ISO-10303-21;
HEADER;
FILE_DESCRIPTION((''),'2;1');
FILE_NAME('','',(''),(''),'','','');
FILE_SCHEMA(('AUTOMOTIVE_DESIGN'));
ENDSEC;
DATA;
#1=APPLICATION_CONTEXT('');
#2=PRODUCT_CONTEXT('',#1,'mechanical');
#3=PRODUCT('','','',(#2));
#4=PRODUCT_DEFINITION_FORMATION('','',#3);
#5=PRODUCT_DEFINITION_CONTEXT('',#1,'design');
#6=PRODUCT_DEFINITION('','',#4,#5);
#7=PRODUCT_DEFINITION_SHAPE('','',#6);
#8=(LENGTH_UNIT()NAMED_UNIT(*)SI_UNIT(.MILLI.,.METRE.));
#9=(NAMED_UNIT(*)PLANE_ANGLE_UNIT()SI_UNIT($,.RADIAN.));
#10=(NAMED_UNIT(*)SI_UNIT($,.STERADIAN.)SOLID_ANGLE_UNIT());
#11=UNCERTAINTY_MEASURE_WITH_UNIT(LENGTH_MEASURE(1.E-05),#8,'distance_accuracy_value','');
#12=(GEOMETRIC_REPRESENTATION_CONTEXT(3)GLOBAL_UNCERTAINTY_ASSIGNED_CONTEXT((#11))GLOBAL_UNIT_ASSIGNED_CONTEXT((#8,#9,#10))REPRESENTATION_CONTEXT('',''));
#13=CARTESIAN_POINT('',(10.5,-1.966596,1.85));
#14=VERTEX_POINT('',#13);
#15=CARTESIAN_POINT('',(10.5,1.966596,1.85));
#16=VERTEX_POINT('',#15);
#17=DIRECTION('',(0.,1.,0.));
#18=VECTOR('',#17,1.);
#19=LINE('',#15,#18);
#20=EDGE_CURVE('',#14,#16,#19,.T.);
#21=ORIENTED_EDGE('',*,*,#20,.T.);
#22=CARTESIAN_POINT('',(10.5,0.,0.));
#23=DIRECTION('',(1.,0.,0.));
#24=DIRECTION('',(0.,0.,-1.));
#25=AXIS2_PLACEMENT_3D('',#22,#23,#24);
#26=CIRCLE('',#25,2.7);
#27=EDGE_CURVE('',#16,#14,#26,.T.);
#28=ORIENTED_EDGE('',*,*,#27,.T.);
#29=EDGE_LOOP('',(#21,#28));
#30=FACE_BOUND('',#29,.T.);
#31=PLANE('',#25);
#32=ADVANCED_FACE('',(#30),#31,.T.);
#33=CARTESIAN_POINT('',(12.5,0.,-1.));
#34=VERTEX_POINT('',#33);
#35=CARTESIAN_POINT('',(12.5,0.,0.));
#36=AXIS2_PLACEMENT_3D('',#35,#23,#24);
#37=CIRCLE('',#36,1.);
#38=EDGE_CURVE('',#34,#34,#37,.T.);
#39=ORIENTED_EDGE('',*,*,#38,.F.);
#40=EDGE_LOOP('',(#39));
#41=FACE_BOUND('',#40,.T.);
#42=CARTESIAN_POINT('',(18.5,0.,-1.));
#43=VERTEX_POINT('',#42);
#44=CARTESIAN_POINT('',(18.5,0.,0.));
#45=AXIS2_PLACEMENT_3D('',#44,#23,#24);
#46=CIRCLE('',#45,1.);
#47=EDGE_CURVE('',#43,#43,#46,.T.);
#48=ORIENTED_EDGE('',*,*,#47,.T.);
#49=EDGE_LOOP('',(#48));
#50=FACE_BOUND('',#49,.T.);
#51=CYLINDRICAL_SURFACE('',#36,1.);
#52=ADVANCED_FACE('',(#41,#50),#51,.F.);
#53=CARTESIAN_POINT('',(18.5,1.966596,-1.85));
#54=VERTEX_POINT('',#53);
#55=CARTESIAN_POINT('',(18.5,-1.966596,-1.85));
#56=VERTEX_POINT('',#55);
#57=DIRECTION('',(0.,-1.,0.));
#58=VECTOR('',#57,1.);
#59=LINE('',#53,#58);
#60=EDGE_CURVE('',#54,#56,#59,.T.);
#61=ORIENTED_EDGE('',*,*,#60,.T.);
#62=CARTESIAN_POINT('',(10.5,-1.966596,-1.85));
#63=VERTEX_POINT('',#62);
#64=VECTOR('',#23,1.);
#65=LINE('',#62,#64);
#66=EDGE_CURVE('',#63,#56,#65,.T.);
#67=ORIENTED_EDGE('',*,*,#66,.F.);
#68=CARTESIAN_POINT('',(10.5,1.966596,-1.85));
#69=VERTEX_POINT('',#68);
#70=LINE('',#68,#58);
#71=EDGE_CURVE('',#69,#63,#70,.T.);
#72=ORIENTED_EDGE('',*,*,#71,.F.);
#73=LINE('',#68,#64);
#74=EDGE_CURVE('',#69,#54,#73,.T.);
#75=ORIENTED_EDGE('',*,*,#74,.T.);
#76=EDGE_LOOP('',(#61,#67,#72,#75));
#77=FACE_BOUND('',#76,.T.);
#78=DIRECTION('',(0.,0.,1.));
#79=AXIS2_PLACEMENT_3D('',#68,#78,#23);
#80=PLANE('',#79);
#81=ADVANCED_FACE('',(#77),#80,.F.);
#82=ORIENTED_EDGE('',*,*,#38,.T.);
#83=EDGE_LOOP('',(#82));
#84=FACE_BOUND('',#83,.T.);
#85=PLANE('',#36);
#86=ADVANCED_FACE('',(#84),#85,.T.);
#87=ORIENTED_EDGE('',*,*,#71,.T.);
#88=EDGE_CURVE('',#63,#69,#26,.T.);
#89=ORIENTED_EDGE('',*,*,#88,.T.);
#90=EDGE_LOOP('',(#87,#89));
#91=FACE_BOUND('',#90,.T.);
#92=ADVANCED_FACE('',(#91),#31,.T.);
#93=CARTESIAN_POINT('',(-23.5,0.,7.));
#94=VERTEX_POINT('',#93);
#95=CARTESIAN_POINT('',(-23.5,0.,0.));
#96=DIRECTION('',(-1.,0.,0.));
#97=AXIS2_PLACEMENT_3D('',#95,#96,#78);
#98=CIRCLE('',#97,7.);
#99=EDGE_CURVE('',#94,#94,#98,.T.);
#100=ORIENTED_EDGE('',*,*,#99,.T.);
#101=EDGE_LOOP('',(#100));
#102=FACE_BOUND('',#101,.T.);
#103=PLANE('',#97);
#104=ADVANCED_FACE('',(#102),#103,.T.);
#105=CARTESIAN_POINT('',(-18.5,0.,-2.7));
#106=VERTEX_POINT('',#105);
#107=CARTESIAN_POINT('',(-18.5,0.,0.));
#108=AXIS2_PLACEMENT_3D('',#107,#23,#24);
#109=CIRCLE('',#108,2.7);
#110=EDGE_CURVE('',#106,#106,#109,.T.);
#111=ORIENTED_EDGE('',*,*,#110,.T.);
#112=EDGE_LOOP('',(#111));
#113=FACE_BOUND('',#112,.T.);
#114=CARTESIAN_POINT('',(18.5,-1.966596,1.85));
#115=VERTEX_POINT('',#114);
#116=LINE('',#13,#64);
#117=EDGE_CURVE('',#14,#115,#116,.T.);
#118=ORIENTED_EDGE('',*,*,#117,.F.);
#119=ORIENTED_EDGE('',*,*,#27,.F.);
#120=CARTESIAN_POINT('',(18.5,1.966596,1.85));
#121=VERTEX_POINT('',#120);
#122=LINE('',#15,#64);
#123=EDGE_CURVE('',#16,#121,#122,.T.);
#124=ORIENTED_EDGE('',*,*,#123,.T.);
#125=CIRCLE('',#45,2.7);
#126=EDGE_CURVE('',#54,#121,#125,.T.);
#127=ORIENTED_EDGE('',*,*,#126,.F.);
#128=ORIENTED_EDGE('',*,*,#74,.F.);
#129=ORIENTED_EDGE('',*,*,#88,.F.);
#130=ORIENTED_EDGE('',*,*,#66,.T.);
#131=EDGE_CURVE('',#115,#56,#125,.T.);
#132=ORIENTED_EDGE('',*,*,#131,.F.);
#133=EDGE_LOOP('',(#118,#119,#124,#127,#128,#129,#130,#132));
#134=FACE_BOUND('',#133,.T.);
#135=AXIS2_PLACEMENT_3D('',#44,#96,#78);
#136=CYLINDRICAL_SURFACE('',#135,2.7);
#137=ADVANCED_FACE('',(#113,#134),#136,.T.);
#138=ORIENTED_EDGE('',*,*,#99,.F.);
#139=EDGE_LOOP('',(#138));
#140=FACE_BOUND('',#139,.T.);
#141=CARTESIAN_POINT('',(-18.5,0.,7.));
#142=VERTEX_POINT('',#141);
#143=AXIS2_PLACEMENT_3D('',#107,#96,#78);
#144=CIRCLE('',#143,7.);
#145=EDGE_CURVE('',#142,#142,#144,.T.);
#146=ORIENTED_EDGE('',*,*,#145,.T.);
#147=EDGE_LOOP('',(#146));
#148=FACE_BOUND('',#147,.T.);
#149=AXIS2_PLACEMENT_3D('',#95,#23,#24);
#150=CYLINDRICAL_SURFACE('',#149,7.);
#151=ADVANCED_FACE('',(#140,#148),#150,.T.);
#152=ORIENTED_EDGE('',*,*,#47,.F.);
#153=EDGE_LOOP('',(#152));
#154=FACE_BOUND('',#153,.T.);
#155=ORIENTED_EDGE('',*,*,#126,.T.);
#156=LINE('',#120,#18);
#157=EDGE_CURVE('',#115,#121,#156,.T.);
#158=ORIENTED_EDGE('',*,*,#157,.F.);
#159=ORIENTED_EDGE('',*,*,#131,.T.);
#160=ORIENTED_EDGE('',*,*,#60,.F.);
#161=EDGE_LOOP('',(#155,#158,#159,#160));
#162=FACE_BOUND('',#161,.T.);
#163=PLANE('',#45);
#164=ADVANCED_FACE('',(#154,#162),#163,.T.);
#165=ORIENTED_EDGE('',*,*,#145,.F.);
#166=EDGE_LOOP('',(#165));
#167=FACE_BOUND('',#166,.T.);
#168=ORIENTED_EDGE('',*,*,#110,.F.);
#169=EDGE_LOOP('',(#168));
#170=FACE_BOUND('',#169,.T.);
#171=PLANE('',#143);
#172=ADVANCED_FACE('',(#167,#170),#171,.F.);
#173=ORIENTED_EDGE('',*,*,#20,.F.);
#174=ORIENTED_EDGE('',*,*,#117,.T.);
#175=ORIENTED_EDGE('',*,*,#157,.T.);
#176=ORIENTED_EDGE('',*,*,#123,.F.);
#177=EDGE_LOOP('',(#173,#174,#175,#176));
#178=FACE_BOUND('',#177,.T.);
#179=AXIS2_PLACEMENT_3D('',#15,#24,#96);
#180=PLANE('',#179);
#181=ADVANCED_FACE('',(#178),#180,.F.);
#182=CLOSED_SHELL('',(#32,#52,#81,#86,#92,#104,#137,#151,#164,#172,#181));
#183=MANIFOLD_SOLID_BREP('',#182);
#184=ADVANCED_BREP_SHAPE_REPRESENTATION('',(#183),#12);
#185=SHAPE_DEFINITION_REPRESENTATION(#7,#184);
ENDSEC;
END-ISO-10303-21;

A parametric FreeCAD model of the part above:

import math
import FreeCAD as App
import Part
import Sketcher
from FreeCAD import Vector
Q = App.Units.Quantity

doc = App.newDocument("Part")
body = doc.addObject("PartDesign::Body", "Body")

# Sketch on YZ plane
sketch1 = body.newObject("Sketcher::SketchObject", "Sketch")
sketch1.AttachmentSupport = (doc.getObject("YZ_Plane"), [""])
sketch1.MapMode = "FlatFace"
sketch1.addGeometry(Part.Circle(Vector(0, 0, 0), Vector(0, 0, 1), 2.7), False)
sketch1.addConstraint([
    Sketcher.Constraint("Coincident", 0, 3, -1, 1),
    Sketcher.Constraint("Diameter", 0, Q("5.4 mm")),
])
pad1 = body.newObject("PartDesign::Pad", "Pad")
pad1.Profile = sketch1
pad1.Length = 37
pad1.Midplane = True

# Sketch on YZ plane
sketch2 = body.newObject("Sketcher::SketchObject", "Sketch001")
sketch2.AttachmentSupport = (doc.getObject("YZ_Plane"), [""])
sketch2.MapMode = "FlatFace"
sketch2.AttachmentOffset = App.Placement(Vector(0, 0, 18.5), App.Rotation())
sketch2.addGeometry([
    Part.LineSegment(Vector(-1.966596, 1.85, 0), Vector(1.966596, 1.85, 0)),
    Part.ArcOfCircle(Part.Circle(Vector(0, 0, 0), Vector(0, 0, 1), 2.7), math.radians(43.250173), math.radians(136.749827)),
    Part.LineSegment(Vector(1.966596, -1.85, 0), Vector(-1.966596, -1.85, 0)),
    Part.ArcOfCircle(Part.Circle(Vector(0, 0, 0), Vector(0, 0, 1), 2.7), math.radians(-136.749827), math.radians(-43.250173)),
], False)
sketch2.addConstraint([
    Sketcher.Constraint("Coincident", 0, 1, 1, 2),
    Sketcher.Constraint("Coincident", 1, 1, 0, 2),
    Sketcher.Constraint("Coincident", 2, 1, 3, 2),
    Sketcher.Constraint("Coincident", 3, 1, 2, 2),
    Sketcher.Constraint("Horizontal", 0),
    Sketcher.Constraint("Horizontal", 2),
    Sketcher.Constraint("Coincident", 1, 3, -1, 1),
    Sketcher.Constraint("Coincident", 3, 3, -1, 1),
    Sketcher.Constraint("Equal", 1, 3),
    Sketcher.Constraint("Vertical", 1, 1, 2, 1),
    Sketcher.Constraint("Radius", 1, Q("2.7 mm")),
    Sketcher.Constraint("DistanceY", 2, 1, 1, 1, Q("3.7 mm")),
])
pocket1 = body.newObject("PartDesign::Pocket", "Pocket")
pocket1.Profile = sketch2
pocket1.Length = 8

# Sketch on YZ plane
sketch3 = body.newObject("Sketcher::SketchObject", "Sketch002")
sketch3.AttachmentSupport = (doc.getObject("YZ_Plane"), [""])
sketch3.MapMode = "FlatFace"
sketch3.AttachmentOffset = App.Placement(Vector(0, 0, 18.5), App.Rotation())
sketch3.addGeometry(Part.Circle(Vector(0, 0, 0), Vector(0, 0, 1), 1), False)
sketch3.addConstraint([
    Sketcher.Constraint("Coincident", 0, 3, -1, 1),
    Sketcher.Constraint("Diameter", 0, Q("2 mm")),
])
pocket2 = body.newObject("PartDesign::Pocket", "Pocket001")
pocket2.Profile = sketch3
pocket2.Length = 6

# Sketch on YZ plane
sketch4 = body.newObject("Sketcher::SketchObject", "Sketch003")
sketch4.AttachmentSupport = (doc.getObject("YZ_Plane"), [""])
sketch4.MapMode = "FlatFace"
sketch4.AttachmentOffset = App.Placement(Vector(0, 0, -18.5), App.Rotation())
sketch4.addGeometry(Part.Circle(Vector(0, 0, 0), Vector(0, 0, 1), 7), False)
sketch4.addConstraint([
    Sketcher.Constraint("Coincident", 0, 3, -1, 1),
    Sketcher.Constraint("Diameter", 0, Q("14 mm")),
])
pad2 = body.newObject("PartDesign::Pad", "Pad001")
pad2.Profile = sketch4
pad2.Length = 5
pad2.Reversed = True

doc.recompute()
